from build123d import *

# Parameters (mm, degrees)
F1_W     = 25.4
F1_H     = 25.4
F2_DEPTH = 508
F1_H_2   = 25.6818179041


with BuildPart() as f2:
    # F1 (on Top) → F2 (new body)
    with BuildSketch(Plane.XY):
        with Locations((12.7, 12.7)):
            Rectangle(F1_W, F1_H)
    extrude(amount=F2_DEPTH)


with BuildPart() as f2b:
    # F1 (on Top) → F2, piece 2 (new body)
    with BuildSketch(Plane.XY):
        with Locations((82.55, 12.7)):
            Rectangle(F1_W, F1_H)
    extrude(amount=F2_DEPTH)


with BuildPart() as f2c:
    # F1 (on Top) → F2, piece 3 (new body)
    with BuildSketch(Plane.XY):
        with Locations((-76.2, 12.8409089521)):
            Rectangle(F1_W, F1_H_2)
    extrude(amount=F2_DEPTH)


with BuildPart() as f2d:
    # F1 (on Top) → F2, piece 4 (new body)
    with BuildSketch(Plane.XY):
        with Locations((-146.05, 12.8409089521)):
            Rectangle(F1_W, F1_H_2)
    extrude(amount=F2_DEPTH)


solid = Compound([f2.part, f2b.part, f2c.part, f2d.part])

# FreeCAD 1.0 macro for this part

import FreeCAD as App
import Part
import Sketcher
from FreeCAD import Vector
Q = App.Units.Quantity

doc = App.newDocument("Part")
body = doc.addObject("PartDesign::Body", "Body")

sketch1 = body.newObject("Sketcher::SketchObject", "Sketch")
sketch1.AttachmentSupport = (doc.getObject("XY_Plane"), [""])
sketch1.MapMode = "FlatFace"
sketch1.addGeometry([
    Part.LineSegment(Vector(0, 25, 0), Vector(0, 0, 0)),
    Part.LineSegment(Vector(0, 0, 0), Vector(25, 0, 0)),
    Part.LineSegment(Vector(25, 0, 0), Vector(25, 25, 0)),
    Part.LineSegment(Vector(25, 25, 0), Vector(0, 25, 0)),
], False)
sketch1.addConstraint([
    Sketcher.Constraint("Coincident", 0, 2, 1, 1),
    Sketcher.Constraint("Coincident", 1, 2, 2, 1),
    Sketcher.Constraint("Coincident", 2, 2, 3, 1),
    Sketcher.Constraint("Coincident", 3, 2, 0, 1),
    Sketcher.Constraint("Vertical", 0),
    Sketcher.Constraint("Horizontal", 1),
    Sketcher.Constraint("Vertical", 2),
    Sketcher.Constraint("Horizontal", 3),
    Sketcher.Constraint("Coincident", 0, 2, -1, 1),
    Sketcher.Constraint("Equal", 3, 0),
    Sketcher.Constraint("DistanceX", 1, 1, 1, 2, Q("1 in")),
])
pad1 = body.newObject("PartDesign::Pad", "Pad")
pad1.Profile = sketch1
pad1.Length = Q("20 in")
body2 = doc.addObject("PartDesign::Body", "Body001")

sketch2 = body2.newObject("Sketcher::SketchObject", "Sketch001")
sketch2.AttachmentSupport = (doc.getObject("XY_Plane001"), [""])
sketch2.MapMode = "FlatFace"
sketch2.addGeometry([
    Part.LineSegment(Vector(70, 25, 0), Vector(70, 0, 0)),
    Part.LineSegment(Vector(70, 0, 0), Vector(95, 0, 0)),
    Part.LineSegment(Vector(95, 0, 0), Vector(95, 25, 0)),
    Part.LineSegment(Vector(95, 25, 0), Vector(70, 25, 0)),
], False)
sketch2.addConstraint([
    Sketcher.Constraint("Coincident", 0, 2, 1, 1),
    Sketcher.Constraint("Coincident", 1, 2, 2, 1),
    Sketcher.Constraint("Coincident", 2, 2, 3, 1),
    Sketcher.Constraint("Coincident", 3, 2, 0, 1),
    Sketcher.Constraint("Vertical", 0),
    Sketcher.Constraint("Horizontal", 1),
    Sketcher.Constraint("Vertical", 2),
    Sketcher.Constraint("Horizontal", 3),
    Sketcher.Constraint("PointOnObject", 0, 2, -1),
    Sketcher.Constraint("Equal", 3, 0),
    Sketcher.Constraint("DistanceX", 1, 1, 1, 2, Q("1 in")),
    Sketcher.Constraint("DistanceX", -1, 1, 0, 2, Q("2.75 in")),
])
pad2 = body2.newObject("PartDesign::Pad", "Pad001")
pad2.Profile = sketch2
pad2.Length = Q("20 in")
body3 = doc.addObject("PartDesign::Body", "Body002")

sketch3 = body3.newObject("Sketcher::SketchObject", "Sketch002")
sketch3.AttachmentSupport = (doc.getObject("XY_Plane002"), [""])
sketch3.MapMode = "FlatFace"
sketch3.addGeometry([
    Part.LineSegment(Vector(-89, 26, 0), Vector(-89, 0, 0)),
    Part.LineSegment(Vector(-89, 0, 0), Vector(-64, 0, 0)),
    Part.LineSegment(Vector(-64, 0, 0), Vector(-64, 26, 0)),
    Part.LineSegment(Vector(-64, 26, 0), Vector(-89, 26, 0)),
], False)
sketch3.addConstraint([
    Sketcher.Constraint("Coincident", 0, 2, 1, 1),
    Sketcher.Constraint("Coincident", 1, 2, 2, 1),
    Sketcher.Constraint("Coincident", 2, 2, 3, 1),
    Sketcher.Constraint("Coincident", 3, 2, 0, 1),
    Sketcher.Constraint("Vertical", 0),
    Sketcher.Constraint("Horizontal", 1),
    Sketcher.Constraint("Vertical", 2),
    Sketcher.Constraint("Horizontal", 3),
    Sketcher.Constraint("PointOnObject", 0, 2, -1),
    Sketcher.Constraint("DistanceX", 1, 1, 1, 2, Q("1 in")),
    Sketcher.Constraint("DistanceX", 0, 2, -1, 1, Q("3.5 in")),
    Sketcher.Constraint("DistanceY", 0, 2, 0, 1, Q("25.681818 mm")),
])
pad3 = body3.newObject("PartDesign::Pad", "Pad002")
pad3.Profile = sketch3
pad3.Length = Q("20 in")
body4 = doc.addObject("PartDesign::Body", "Body003")

sketch4 = body4.newObject("Sketcher::SketchObject", "Sketch003")
sketch4.AttachmentSupport = (doc.getObject("XY_Plane003"), [""])
sketch4.MapMode = "FlatFace"
sketch4.addGeometry([
    Part.LineSegment(Vector(-159, 26, 0), Vector(-159, 0, 0)),
    Part.LineSegment(Vector(-159, 0, 0), Vector(-133, 0, 0)),
    Part.LineSegment(Vector(-133, 0, 0), Vector(-133, 26, 0)),
    Part.LineSegment(Vector(-133, 26, 0), Vector(-159, 26, 0)),
], False)
sketch4.addConstraint([
    Sketcher.Constraint("Coincident", 0, 2, 1, 1),
    Sketcher.Constraint("Coincident", 1, 2, 2, 1),
    Sketcher.Constraint("Coincident", 2, 2, 3, 1),
    Sketcher.Constraint("Coincident", 3, 2, 0, 1),
    Sketcher.Constraint("Vertical", 0),
    Sketcher.Constraint("Horizontal", 1),
    Sketcher.Constraint("Vertical", 2),
    Sketcher.Constraint("Horizontal", 3),
    Sketcher.Constraint("PointOnObject", 0, 2, -1),
    Sketcher.Constraint("DistanceX", 1, 1, 1, 2, Q("1 in")),
    Sketcher.Constraint("DistanceX", 0, 2, -1, 1, Q("6.25 in")),
    Sketcher.Constraint("DistanceY", 0, 2, 0, 1, Q("25.681818 mm")),
])
pad4 = body4.newObject("PartDesign::Pad", "Pad003")
pad4.Profile = sketch4
pad4.Length = Q("20 in")

doc.recompute()
